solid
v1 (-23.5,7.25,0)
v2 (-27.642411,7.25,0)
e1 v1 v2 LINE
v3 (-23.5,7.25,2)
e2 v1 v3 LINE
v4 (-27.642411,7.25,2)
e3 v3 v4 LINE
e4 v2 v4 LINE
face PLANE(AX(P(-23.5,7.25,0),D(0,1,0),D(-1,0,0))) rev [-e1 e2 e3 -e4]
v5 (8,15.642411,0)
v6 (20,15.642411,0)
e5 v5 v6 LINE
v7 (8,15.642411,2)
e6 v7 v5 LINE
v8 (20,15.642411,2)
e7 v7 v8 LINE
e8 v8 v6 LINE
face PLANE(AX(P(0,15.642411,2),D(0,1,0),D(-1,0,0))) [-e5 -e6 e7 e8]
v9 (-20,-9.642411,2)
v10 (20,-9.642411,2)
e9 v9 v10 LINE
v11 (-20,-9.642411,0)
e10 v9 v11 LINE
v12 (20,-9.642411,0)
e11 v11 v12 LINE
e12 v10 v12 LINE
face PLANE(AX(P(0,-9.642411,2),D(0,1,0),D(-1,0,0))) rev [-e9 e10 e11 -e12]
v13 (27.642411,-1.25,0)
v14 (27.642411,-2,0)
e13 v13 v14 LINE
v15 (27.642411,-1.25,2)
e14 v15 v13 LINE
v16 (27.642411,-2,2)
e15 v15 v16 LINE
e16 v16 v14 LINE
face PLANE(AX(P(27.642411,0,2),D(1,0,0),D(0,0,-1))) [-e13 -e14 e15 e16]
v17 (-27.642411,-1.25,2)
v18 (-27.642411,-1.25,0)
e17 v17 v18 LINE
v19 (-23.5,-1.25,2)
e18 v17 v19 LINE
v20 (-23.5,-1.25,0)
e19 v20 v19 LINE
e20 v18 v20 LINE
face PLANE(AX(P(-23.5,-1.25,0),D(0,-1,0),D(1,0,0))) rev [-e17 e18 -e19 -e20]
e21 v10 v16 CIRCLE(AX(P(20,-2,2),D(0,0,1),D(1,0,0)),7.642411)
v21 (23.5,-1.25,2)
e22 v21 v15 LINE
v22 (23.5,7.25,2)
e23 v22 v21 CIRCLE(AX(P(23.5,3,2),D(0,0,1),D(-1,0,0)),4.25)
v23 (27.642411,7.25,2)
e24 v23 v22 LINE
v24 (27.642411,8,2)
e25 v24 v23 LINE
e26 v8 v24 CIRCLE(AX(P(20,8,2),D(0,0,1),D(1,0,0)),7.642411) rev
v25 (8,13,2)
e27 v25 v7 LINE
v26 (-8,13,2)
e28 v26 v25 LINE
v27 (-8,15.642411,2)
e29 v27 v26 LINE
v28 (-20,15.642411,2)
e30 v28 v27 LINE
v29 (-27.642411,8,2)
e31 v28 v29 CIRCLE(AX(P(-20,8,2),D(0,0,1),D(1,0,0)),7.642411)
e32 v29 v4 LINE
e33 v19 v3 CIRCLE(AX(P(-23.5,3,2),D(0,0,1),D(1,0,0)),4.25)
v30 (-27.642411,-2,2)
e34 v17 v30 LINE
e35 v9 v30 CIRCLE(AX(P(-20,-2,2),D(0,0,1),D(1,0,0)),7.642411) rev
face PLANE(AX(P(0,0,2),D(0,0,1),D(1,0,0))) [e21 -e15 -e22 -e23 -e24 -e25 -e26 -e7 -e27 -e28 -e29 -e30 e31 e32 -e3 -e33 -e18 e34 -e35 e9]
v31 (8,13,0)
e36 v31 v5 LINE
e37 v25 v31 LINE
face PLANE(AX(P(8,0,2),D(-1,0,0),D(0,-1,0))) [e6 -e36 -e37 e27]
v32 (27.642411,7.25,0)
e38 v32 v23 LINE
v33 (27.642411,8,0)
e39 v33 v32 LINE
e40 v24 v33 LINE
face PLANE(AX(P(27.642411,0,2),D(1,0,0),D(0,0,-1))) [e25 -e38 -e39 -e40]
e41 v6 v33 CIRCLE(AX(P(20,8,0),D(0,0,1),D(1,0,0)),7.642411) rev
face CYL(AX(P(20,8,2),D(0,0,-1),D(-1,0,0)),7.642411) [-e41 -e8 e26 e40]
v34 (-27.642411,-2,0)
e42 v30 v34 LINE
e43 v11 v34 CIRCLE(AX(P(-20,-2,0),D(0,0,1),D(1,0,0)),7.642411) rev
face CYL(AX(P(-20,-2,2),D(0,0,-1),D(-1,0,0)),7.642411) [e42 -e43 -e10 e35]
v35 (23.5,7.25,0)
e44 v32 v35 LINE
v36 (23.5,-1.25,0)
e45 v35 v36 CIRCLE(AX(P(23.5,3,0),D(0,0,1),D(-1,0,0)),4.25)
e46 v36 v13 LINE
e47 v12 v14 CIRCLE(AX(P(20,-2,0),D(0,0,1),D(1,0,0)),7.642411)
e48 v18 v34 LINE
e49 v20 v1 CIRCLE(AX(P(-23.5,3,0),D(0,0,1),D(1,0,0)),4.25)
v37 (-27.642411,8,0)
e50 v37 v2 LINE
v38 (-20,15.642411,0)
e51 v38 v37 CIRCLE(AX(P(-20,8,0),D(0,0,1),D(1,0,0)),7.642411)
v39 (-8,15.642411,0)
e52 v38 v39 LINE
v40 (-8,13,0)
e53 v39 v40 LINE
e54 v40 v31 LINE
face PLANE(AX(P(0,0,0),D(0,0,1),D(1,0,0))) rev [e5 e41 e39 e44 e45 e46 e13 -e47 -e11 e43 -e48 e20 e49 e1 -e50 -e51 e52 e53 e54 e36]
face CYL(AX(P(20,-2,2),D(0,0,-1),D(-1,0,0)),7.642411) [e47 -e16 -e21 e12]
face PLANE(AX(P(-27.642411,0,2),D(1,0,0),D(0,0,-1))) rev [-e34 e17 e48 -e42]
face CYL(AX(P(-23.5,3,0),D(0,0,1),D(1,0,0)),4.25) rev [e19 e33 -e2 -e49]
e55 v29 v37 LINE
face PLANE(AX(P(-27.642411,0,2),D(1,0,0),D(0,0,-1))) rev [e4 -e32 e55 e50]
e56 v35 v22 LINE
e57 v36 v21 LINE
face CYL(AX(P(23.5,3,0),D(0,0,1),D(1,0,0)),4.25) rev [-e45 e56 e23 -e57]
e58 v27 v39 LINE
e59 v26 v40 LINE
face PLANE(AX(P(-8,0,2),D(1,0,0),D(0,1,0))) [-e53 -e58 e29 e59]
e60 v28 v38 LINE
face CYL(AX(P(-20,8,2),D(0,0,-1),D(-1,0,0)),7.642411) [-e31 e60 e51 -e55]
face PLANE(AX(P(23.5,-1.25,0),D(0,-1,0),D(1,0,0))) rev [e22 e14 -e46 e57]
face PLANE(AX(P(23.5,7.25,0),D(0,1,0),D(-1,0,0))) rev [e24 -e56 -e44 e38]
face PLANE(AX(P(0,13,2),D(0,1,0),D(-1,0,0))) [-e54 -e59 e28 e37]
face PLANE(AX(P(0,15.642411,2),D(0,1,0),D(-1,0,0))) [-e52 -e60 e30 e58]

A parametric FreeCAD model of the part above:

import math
import FreeCAD as App
import Part
import Sketcher

V = App.Vector
Q = App.Units.Quantity

doc = App.newDocument("Part")
params = doc.addObject("Spreadsheet::Sheet", "Params")
for row, (alias, value) in enumerate([
    ("sketch1_diameter", "6.5 mm"),
    ("sketch1_width", "12 mm"),
    ("sketch1_width2", "40 mm"),
    ("sketch1_height", "10 mm"),
    ("pad1_length", "2 mm"),
    ("sketch2_radius", "4.25 mm"),
    ("pocket1_length", "2 mm"),
], start=1):
    params.set(f"A{row}", alias)
    params.set(f"B{row}", "=" + value)
    params.setAlias(f"B{row}", alias)

body = doc.addObject("PartDesign::Body", "Body")

# Sketch on XY plane
sketch1 = body.newObject("Sketcher::SketchObject", "Sketch")
sketch1.AttachmentSupport = (doc.getObject("XY_Plane"), [""])
sketch1.MapMode = "FlatFace"
sketch1.addGeometry([
    Part.LineSegment(V(-8, 15.6, 0), V(-20, 15.6, 0)),  # 0
    Part.ArcOfCircle(Part.Circle(V(-20, 8, 0), V(0, 0, 1), 7.6), math.radians(90), math.radians(180)),  # 1
    Part.LineSegment(V(-27.6, 8, 0), V(-27.6, -2, 0)),  # 2
    Part.ArcOfCircle(Part.Circle(V(-20, -2, 0), V(0, 0, 1), 7.6), math.radians(180), math.radians(270)),  # 3
    Part.LineSegment(V(-20, -9.6, 0), V(20, -9.6, 0)),  # 4
    Part.ArcOfCircle(Part.Circle(V(20, -2, 0), V(0, 0, 1), 7.6), math.radians(-90), math.radians(0)),  # 5
    Part.LineSegment(V(27.6, -2, 0), V(27.6, 8, 0)),  # 6
    Part.ArcOfCircle(Part.Circle(V(20, 8, 0), V(0, 0, 1), 7.6), math.radians(0), math.radians(90)),  # 7
    Part.LineSegment(V(20, 15.6, 0), V(8, 15.6, 0)),  # 8
    Part.LineSegment(V(8, 15.6, 0), V(8, 13, 0)),  # 9
    Part.LineSegment(V(8, 13, 0), V(-8, 13, 0)),  # 10
    Part.LineSegment(V(-8, 13, 0), V(-8, 15.6, 0)),  # 11
    Part.Circle(V(-23.5, 3, 0), V(0, 0, 1), 3.2),  # 12
    Part.Circle(V(23.5, 3, 0), V(0, 0, 1), 3.2),  # 13
], False)
sketch1.addConstraint([
    Sketcher.Constraint("Tangent", 0, 2, 1, 1),
    Sketcher.Constraint("Tangent", 1, 2, 2, 1),
    Sketcher.Constraint("Tangent", 2, 2, 3, 1),
    Sketcher.Constraint("Tangent", 3, 2, 4, 1),
    Sketcher.Constraint("Tangent", 4, 2, 5, 1),
    Sketcher.Constraint("Tangent", 5, 2, 6, 1),
    Sketcher.Constraint("Tangent", 6, 2, 7, 1),
    Sketcher.Constraint("Tangent", 7, 2, 8, 1),
    Sketcher.Constraint("Coincident", 8, 2, 9, 1),
    Sketcher.Constraint("Coincident", 9, 2, 10, 1),
    Sketcher.Constraint("Coincident", 10, 2, 11, 1),
    Sketcher.Constraint("Coincident", 11, 2, 0, 1),
    Sketcher.Constraint("Horizontal", 0),
    Sketcher.Constraint("Vertical", 2),
    Sketcher.Constraint("Horizontal", 4),
    Sketcher.Constraint("Vertical", 6),
    Sketcher.Constraint("Horizontal", 8),
    Sketcher.Constraint("Vertical", 9),
    Sketcher.Constraint("Horizontal", 10),
    Sketcher.Constraint("Vertical", 11),
    Sketcher.Constraint("Equal", 1, 3),
    Sketcher.Constraint("Equal", 3, 5),
    Sketcher.Constraint("Equal", 5, 7),
    Sketcher.Constraint("Equal", 12, 13),
    Sketcher.Constraint("Symmetric", 1, 3, 7, 3, -2),
    Sketcher.Constraint("Symmetric", 12, 3, 13, 3, -2),
    Sketcher.Constraint("Equal", 0, 8),
    Sketcher.Constraint("Diameter", 12, Q("6.5 mm")),
    Sketcher.Constraint("DistanceX", 0, 2, 0, 1, Q("12 mm")),
    Sketcher.Constraint("DistanceX", 4, 1, 4, 2, Q("40 mm")),
    Sketcher.Constraint("DistanceY", 2, 2, 2, 1, Q("10 mm")),
    Sketcher.Constraint("DistanceY", -1, 1, 1, 3, Q("8 mm")),
    Sketcher.Constraint("DistanceY", -1, 1, 12, 3, Q("3 mm")),
    Sketcher.Constraint("DistanceY", -1, 1, 9, 2, Q("13 mm")),
    Sketcher.Constraint("DistanceX", 12, 3, 13, 3, Q("47 mm")),
    Sketcher.Constraint("Radius", 1, Q("7.642411 mm")),
])
sketch1.setExpression("Constraints[27]", "Params.sketch1_diameter")
sketch1.setExpression("Constraints[28]", "Params.sketch1_width")
sketch1.setExpression("Constraints[29]", "Params.sketch1_width2")
sketch1.setExpression("Constraints[30]", "Params.sketch1_height")
pad1 = body.newObject("PartDesign::Pad", "Pad")
pad1.Profile = sketch1
pad1.setExpression("Length", "Params.pad1_length")

# Sketch on XY plane
sketch2 = body.newObject("Sketcher::SketchObject", "Sketch001")
sketch2.AttachmentSupport = (doc.getObject("XY_Plane"), [""])
sketch2.MapMode = "FlatFace"
sketch2.AttachmentOffset = App.Placement(V(0, 0, 2), App.Rotation())
sketch2.addGeometry([
    Part.LineSegment(V(-30.3, -1.2, 0), V(-23.5, -1.2, 0)),  # 0
    Part.ArcOfCircle(Part.Circle(V(-23.5, 3, 0), V(0, 0, 1), 4.2), math.radians(-90), math.radians(90)),  # 1
    Part.LineSegment(V(-23.5, 7.2, 0), V(-30.3, 7.2, 0)),  # 2
    Part.ArcOfCircle(Part.Circle(V(-30.3, 3, 0), V(0, 0, 1), 4.2), math.radians(90), math.radians(270)),  # 3
    Part.LineSegment(V(23.5, -1.2, 0), V(30.3, -1.2, 0)),  # 4
    Part.ArcOfCircle(Part.Circle(V(30.3, 3, 0), V(0, 0, 1), 4.2), math.radians(-90), math.radians(90)),  # 5
    Part.LineSegment(V(30.3, 7.2, 0), V(23.5, 7.2, 0)),  # 6
    Part.ArcOfCircle(Part.Circle(V(23.5, 3, 0), V(0, 0, 1), 4.2), math.radians(90), math.radians(270)),  # 7
], False)
sketch2.addConstraint([
    Sketcher.Constraint("Tangent", 0, 2, 1, 1),
    Sketcher.Constraint("Tangent", 1, 2, 2, 1),
    Sketcher.Constraint("Tangent", 2, 2, 3, 1),
    Sketcher.Constraint("Tangent", 3, 2, 0, 1),
    Sketcher.Constraint("Tangent", 4, 2, 5, 1),
    Sketcher.Constraint("Tangent", 5, 2, 6, 1),
    Sketcher.Constraint("Tangent", 6, 2, 7, 1),
    Sketcher.Constraint("Tangent", 7, 2, 4, 1),
    Sketcher.Constraint("Horizontal", 0),
    Sketcher.Constraint("Horizontal", 2),
    Sketcher.Constraint("Horizontal", 4),
    Sketcher.Constraint("Horizontal", 6),
    Sketcher.Constraint("Equal", 3, 5),
    Sketcher.Constraint("Symmetric", 3, 3, 5, 3, -2),
    Sketcher.Constraint("Equal", 2, 4),
    Sketcher.Constraint("Radius", 1, Q("4.25 mm")),
    Sketcher.Constraint("DistanceY", -1, 1, 1, 3, Q("3 mm")),
    Sketcher.Constraint("DistanceX", 1, 3, 7, 3, Q("47 mm")),
    Sketcher.Constraint("DistanceX", 0, 1, 0, 2, Q("6.803485 mm")),
])
sketch2.setExpression("Constraints[15]", "Params.sketch2_radius")
pocket1 = body.newObject("PartDesign::Pocket", "Pocket")
pocket1.Profile = sketch2
pocket1.setExpression("Length", "Params.pocket1_length")

doc.recompute()
